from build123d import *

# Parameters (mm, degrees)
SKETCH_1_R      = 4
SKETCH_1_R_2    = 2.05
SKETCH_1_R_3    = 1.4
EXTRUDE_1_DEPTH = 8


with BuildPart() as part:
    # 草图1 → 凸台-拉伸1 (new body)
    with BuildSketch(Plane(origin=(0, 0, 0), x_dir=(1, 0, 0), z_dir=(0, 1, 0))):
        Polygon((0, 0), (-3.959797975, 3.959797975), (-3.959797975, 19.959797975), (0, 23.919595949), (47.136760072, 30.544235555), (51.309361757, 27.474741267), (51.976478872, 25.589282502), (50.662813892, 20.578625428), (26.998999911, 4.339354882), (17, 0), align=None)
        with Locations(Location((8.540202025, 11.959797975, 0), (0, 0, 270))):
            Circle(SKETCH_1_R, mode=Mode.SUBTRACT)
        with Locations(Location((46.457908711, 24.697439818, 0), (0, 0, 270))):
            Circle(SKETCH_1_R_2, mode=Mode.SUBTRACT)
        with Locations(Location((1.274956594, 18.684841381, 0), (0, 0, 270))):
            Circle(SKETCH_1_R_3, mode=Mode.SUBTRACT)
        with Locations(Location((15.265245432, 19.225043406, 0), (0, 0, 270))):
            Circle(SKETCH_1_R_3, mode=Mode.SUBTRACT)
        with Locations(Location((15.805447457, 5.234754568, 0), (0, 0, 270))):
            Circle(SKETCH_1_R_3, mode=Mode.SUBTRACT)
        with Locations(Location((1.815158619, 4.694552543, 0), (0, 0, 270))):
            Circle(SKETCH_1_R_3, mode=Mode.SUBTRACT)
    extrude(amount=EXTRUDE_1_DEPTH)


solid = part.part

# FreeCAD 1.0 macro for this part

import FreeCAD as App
import Part
import Sketcher

V = App.Vector
Q = App.Units.Quantity

doc = App.newDocument("Part")
body = doc.addObject("PartDesign::Body", "Body")

sketch1 = body.newObject("Sketcher::SketchObject", "Sketch")
sketch1.AttachmentSupport = (doc.getObject("XZ_Plane"), [""])
sketch1.MapMode = "FlatFace"
sketch1.addGeometry(Part.LineSegment(V(-4, -4, 0), V(0, 0, 0)), False)
sketch1.addGeometry(Part.LineSegment(V(0, 0, 0), V(17, 0, 0)), False)
sketch1.addGeometry(Part.LineSegment(V(17, 0, 0), V(27, -4.3, 0)), False)
sketch1.addGeometry(Part.LineSegment(V(27, -4.3, 0), V(50.7, -20.6, 0)), False)
sketch1.addGeometry(Part.LineSegment(V(50.7, -20.6, 0), V(52, -25.6, 0)), False)
sketch1.addGeometry(Part.LineSegment(V(52, -25.6, 0), V(51.3, -27.5, 0)), False)
sketch1.addGeometry(Part.LineSegment(V(51.3, -27.5, 0), V(47.1, -30.5, 0)), False)
sketch1.addGeometry(Part.LineSegment(V(47.1, -30.5, 0), V(0, -23.9, 0)), False)
sketch1.addGeometry(Part.LineSegment(V(0, -23.9, 0), V(-4, -20, 0)), False)
sketch1.addGeometry(Part.LineSegment(V(-4, -20, 0), V(-4, -4, 0)), False)
sketch1.addGeometry(Part.Circle(V(15.8, -5.2, 0), V(0, 0, 1), 1.4), False)
sketch1.addGeometry(Part.Circle(V(1.8, -4.7, 0), V(0, 0, 1), 1.4), False)
sketch1.addGeometry(Part.Circle(V(8.5, -12, 0), V(0, 0, 1), 4), False)
sketch1.addGeometry(Part.Circle(V(46.5, -24.7, 0), V(0, 0, 1), 2), False)
sketch1.addGeometry(Part.Circle(V(15.3, -19.2, 0), V(0, 0, 1), 1.4), False)
sketch1.addGeometry(Part.Circle(V(1.3, -18.7, 0), V(0, 0, 1), 1.4), False)
sketch1.addConstraint(Sketcher.Constraint("Coincident", 0, 2, 1, 1))
sketch1.addConstraint(Sketcher.Constraint("Coincident", 1, 2, 2, 1))
sketch1.addConstraint(Sketcher.Constraint("Coincident", 2, 2, 3, 1))
sketch1.addConstraint(Sketcher.Constraint("Coincident", 3, 2, 4, 1))
sketch1.addConstraint(Sketcher.Constraint("Coincident", 4, 2, 5, 1))
sketch1.addConstraint(Sketcher.Constraint("Coincident", 5, 2, 6, 1))
sketch1.addConstraint(Sketcher.Constraint("Coincident", 6, 2, 7, 1))
sketch1.addConstraint(Sketcher.Constraint("Coincident", 7, 2, 8, 1))
sketch1.addConstraint(Sketcher.Constraint("Coincident", 8, 2, 9, 1))
sketch1.addConstraint(Sketcher.Constraint("Coincident", 9, 2, 0, 1))
sketch1.addConstraint(Sketcher.Constraint("Horizontal", 1))
sketch1.addConstraint(Sketcher.Constraint("Vertical", 9))
sketch1.addConstraint(Sketcher.Constraint("Coincident", 0, 2, -1, 1))
sketch1.addConstraint(Sketcher.Constraint("Equal", 10, 11))
sketch1.addConstraint(Sketcher.Constraint("Equal", 11, 14))
sketch1.addConstraint(Sketcher.Constraint("Equal", 14, 15))
sketch1.addConstraint(Sketcher.Constraint("PointOnObject", 7, 2, -2))
sketch1.addConstraint(Sketcher.Constraint("Perpendicular", 0, 8))
sketch1.addConstraint(Sketcher.Constraint("Equal", 4, 6))
sketch1.addConstraint(Sketcher.Constraint("Equal", 0, 8))
sketch1.addConstraint(Sketcher.Constraint("Diameter", 12, 8.0))
sketch1.addConstraint(Sketcher.Constraint("Diameter", 10, 2.8))
sketch1.addConstraint(Sketcher.Constraint("Diameter", 13, 4.1))
sketch1.addConstraint(Sketcher.Constraint("DistanceX", 1, 1, 1, 2, 17.0))
sketch1.addConstraint(Sketcher.Constraint("DistanceY", 9, 1, 9, 2, 16.0))
sketch1.addConstraint(Sketcher.Constraint("Angle", 7, Q("172 deg")))
sketch1.addConstraint(Sketcher.Constraint("Distance", 5, 2.0))
sketch1.addConstraint(Sketcher.Constraint("DistanceY", 8, 2, 12, 3, 8.0))
sketch1.addConstraint(Sketcher.Constraint("Distance", 0, 5.6))
sketch1.addConstraint(Sketcher.Constraint("Distance", 2, 10.9))
sketch1.addConstraint(Sketcher.Constraint("Distance", 3, 28.7))
sketch1.addConstraint(Sketcher.Constraint("Distance", 7, 47.6))
sketch1.addConstraint(Sketcher.Constraint("DistanceX", 8, 2, 12, 3, 12.5))
sketch1.addConstraint(Sketcher.Constraint("Distance", 4, 5.18))
sketch1.addConstraint(Sketcher.Constraint("DistanceX", -1, 1, 2, 2, 26.999))
sketch1.addConstraint(Sketcher.Constraint("DistanceY", 13, 3, 15, 3, 6.012598))
sketch1.addConstraint(Sketcher.Constraint("DistanceY", 10, 3, 2, 2, 0.8954))
sketch1.addConstraint(Sketcher.Constraint("DistanceY", 5, 2, 13, 3, 2.777301))
sketch1.addConstraint(Sketcher.Constraint("DistanceX", 6, 2, 5, 2, 4.172602))
sketch1.addConstraint(Sketcher.Constraint("DistanceX", -1, 1, 11, 3, 1.815159))
sketch1.addConstraint(Sketcher.Constraint("DistanceX", -1, 1, 13, 3, 46.457909))
sketch1.addConstraint(Sketcher.Constraint("DistanceX", -1, 1, 4, 2, 51.976479))
sketch1.addConstraint(Sketcher.Constraint("DistanceX", 11, 3, 10, 3, 13.990289))
sketch1.addConstraint(Sketcher.Constraint("DistanceY", 14, 3, 10, 3, 13.990289))
sketch1.addConstraint(Sketcher.Constraint("DistanceY", 14, 3, 11, 3, 14.530491))
sketch1.addConstraint(Sketcher.Constraint("DistanceX", 15, 3, 14, 3, 13.990289))
sketch1.addConstraint(Sketcher.Constraint("DistanceX", 15, 3, 10, 3, 14.530491))
pad1 = body.newObject("PartDesign::Pad", "Pad")
pad1.Profile = sketch1
pad1.Length = 8
pad1.Reversed = True

doc.recompute()
